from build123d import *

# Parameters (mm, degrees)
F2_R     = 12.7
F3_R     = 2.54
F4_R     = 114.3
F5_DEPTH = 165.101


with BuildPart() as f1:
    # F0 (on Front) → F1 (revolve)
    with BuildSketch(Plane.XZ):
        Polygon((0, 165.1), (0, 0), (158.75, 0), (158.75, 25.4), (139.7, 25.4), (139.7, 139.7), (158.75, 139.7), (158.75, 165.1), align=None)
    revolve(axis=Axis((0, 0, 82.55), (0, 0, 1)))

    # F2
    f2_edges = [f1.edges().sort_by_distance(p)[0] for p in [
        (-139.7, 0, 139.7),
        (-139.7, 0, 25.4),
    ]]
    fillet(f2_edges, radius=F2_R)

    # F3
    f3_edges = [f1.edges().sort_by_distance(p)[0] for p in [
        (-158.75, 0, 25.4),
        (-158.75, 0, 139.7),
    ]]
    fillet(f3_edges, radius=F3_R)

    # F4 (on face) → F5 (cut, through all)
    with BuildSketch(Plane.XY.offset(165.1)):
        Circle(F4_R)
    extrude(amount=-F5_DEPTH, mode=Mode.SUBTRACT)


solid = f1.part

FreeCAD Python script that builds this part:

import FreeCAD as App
import Part
import Sketcher
from FreeCAD import Vector
Q = App.Units.Quantity


def edges_at(feature, points):
    """Names of the edges that pass closest to the given points."""
    edges = feature.Shape.Edges
    near = lambda p: min(range(len(edges)), key=lambda i: edges[i].distToShape(Part.Vertex(*p))[0])
    return sorted({f"Edge{near(p) + 1}" for p in points})


def add_polygon(sketch, points):
    """Adds a closed chain of lines whose ends are joined by coincident constraints."""
    first, n = sketch.GeometryCount, len(points)
    for a, b in zip(points, points[1:] + points[:1]):
        sketch.addGeometry(Part.LineSegment(App.Vector(*a, 0), App.Vector(*b, 0)), False)
    for i in range(n):
        sketch.addConstraint(Sketcher.Constraint("Coincident", first + i, 2, first + (i + 1) % n, 1))

doc = App.newDocument("Part")
body = doc.addObject("PartDesign::Body", "Body")

# Sketch on XZ plane
sketch1 = body.newObject("Sketcher::SketchObject", "Sketch")
sketch1.AttachmentSupport = (doc.getObject("XZ_Plane"), [""])
sketch1.MapMode = "FlatFace"
add_polygon(sketch1, [(0, 165), (0, 0), (159, 0), (159, 25), (140, 25), (140, 140), (159, 140), (159, 165)])  # lines 0-7
sketch1.addConstraint([
    Sketcher.Constraint("Vertical", 0),
    Sketcher.Constraint("Horizontal", 1),
    Sketcher.Constraint("Vertical", 2),
    Sketcher.Constraint("Horizontal", 3),
    Sketcher.Constraint("Vertical", 4),
    Sketcher.Constraint("Horizontal", 5),
    Sketcher.Constraint("Vertical", 6),
    Sketcher.Constraint("Horizontal", 7),
    Sketcher.Constraint("Coincident", 0, 2, -1, 1),
    Sketcher.Constraint("Vertical", 2, 2, 5, 2),
    Sketcher.Constraint("Equal", 2, 6),
    Sketcher.Constraint("DistanceY", 2, 1, 2, 2, Q("1 in")),
    Sketcher.Constraint("DistanceY", 0, 2, 0, 1, Q("6.5 in")),
    Sketcher.Constraint("DistanceX", 1, 1, 1, 2, Q("6.25 in")),
    Sketcher.Constraint("DistanceX", 3, 2, 3, 1, Q("0.75 in")),
])
revolution = body.newObject("PartDesign::Revolution", "Revolution")
revolution.Profile = sketch1
revolution.ReferenceAxis = (sketch1, ["V_Axis"])
revolution.Angle = 360
doc.recompute()

fillet = body.newObject("PartDesign::Fillet", "Fillet")
fillet.Base = (revolution, edges_at(revolution, [(-139.7, 0, 139.7), (-139.7, 0, 25.4)]))
fillet.Radius = Q("0.5 in")
doc.recompute()

fillet2 = body.newObject("PartDesign::Fillet", "Fillet001")
fillet2.Base = (fillet, edges_at(fillet, [(-158.75, 0, 25.4), (-158.75, 0, 139.7)]))
fillet2.Radius = Q("0.1 in")

# Sketch on XY plane
sketch2 = body.newObject("Sketcher::SketchObject", "Sketch001")
sketch2.AttachmentSupport = (doc.getObject("XY_Plane"), [""])
sketch2.MapMode = "FlatFace"
sketch2.AttachmentOffset = App.Placement(Vector(0, 0, 6.5 * 25.4), App.Rotation())
sketch2.addGeometry(Part.Circle(Vector(0, 0, 0), Vector(0, 0, 1), 114), False)
sketch2.addConstraint([
    Sketcher.Constraint("Coincident", 0, 3, -1, 1),
    Sketcher.Constraint("Diameter", 0, Q("9 in")),
])
pocket1 = body.newObject("PartDesign::Pocket", "Pocket")
pocket1.Profile = sketch2
pocket1.Type = "ThroughAll"

doc.recompute()
